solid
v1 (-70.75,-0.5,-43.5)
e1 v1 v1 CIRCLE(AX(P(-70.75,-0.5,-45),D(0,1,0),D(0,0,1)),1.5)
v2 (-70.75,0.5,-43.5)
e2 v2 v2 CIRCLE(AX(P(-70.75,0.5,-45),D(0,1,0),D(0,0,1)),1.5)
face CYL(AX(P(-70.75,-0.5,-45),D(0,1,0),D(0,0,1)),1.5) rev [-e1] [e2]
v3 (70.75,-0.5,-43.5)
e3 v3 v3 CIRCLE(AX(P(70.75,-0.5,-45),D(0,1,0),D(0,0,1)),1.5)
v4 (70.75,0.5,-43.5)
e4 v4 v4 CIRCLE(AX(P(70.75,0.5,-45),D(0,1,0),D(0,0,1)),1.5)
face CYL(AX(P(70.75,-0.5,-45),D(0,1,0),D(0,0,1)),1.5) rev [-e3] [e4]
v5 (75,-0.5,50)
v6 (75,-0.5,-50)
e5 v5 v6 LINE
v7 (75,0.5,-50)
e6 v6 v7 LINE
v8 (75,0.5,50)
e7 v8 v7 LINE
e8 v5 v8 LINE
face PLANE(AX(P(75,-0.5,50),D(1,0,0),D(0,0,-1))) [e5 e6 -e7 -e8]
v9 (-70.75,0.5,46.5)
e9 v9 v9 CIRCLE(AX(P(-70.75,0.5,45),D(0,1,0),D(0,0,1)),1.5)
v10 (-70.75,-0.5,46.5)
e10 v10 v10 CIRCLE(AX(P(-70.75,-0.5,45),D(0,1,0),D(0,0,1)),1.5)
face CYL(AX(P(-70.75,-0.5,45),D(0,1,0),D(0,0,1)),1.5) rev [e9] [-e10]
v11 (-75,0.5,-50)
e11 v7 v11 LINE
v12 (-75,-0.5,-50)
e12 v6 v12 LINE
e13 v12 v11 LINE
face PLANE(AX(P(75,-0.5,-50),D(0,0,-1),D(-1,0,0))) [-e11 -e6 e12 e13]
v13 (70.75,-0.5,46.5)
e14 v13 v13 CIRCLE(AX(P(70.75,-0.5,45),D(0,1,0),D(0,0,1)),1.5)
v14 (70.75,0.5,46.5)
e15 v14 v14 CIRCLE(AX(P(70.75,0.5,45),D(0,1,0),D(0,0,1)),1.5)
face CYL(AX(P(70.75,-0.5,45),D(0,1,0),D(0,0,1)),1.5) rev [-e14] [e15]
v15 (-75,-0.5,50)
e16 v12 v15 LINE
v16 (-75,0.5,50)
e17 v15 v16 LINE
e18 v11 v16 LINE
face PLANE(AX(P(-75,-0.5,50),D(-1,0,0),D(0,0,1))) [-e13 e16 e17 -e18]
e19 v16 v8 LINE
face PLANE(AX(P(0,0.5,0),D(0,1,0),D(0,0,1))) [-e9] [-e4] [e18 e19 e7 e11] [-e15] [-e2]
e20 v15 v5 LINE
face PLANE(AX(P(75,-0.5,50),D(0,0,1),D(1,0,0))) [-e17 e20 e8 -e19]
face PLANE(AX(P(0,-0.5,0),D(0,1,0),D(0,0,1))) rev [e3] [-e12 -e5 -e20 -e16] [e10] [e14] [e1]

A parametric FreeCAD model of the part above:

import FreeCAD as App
import Part
import Sketcher
from FreeCAD import Vector

doc = App.newDocument("Part")
body = doc.addObject("PartDesign::Body", "Body")

sketch1 = body.newObject("Sketcher::SketchObject", "Sketch")
sketch1.AttachmentSupport = (doc.getObject("XZ_Plane"), [""])
sketch1.MapMode = "FlatFace"
sketch1.addGeometry([
    Part.LineSegment(Vector(-75, -50, 0), Vector(-75, 50, 0)),
    Part.LineSegment(Vector(-75, 50, 0), Vector(75, 50, 0)),
    Part.LineSegment(Vector(75, 50, 0), Vector(75, -50, 0)),
    Part.LineSegment(Vector(75, -50, 0), Vector(-75, -50, 0)),
], False)
sketch1.addConstraint([
    Sketcher.Constraint("Coincident", 0, 2, 1, 1),
    Sketcher.Constraint("Coincident", 1, 2, 2, 1),
    Sketcher.Constraint("Coincident", 2, 2, 3, 1),
    Sketcher.Constraint("Coincident", 3, 2, 0, 1),
    Sketcher.Constraint("Vertical", 0),
    Sketcher.Constraint("Horizontal", 1),
    Sketcher.Constraint("Vertical", 2),
    Sketcher.Constraint("Horizontal", 3),
    Sketcher.Constraint("Symmetric", 0, 2, 2, 2, -1, 1),
    Sketcher.Constraint("DistanceX", 1, 1, 1, 2, 150.0),
    Sketcher.Constraint("DistanceY", 0, 1, 0, 2, 100.0),
])
pad1 = body.newObject("PartDesign::Pad", "Pad")
pad1.Profile = sketch1
pad1.Length = 1
pad1.Midplane = True

sketch2 = body.newObject("Sketcher::SketchObject", "Sketch001")
sketch2.AttachmentSupport = (doc.getObject("XZ_Plane"), [""])
sketch2.MapMode = "FlatFace"
sketch2.addGeometry([
    Part.Circle(Vector(-70.8, -45, 0), Vector(0, 0, 1), 1.5),
    Part.Circle(Vector(70.8, -45, 0), Vector(0, 0, 1), 1.5),
    Part.Circle(Vector(-70.8, 45, 0), Vector(0, 0, 1), 1.5),
    Part.Circle(Vector(70.8, 45, 0), Vector(0, 0, 1), 1.5),
], False)
sketch2.addConstraint([
    Sketcher.Constraint("Equal", 0, 1),
    Sketcher.Constraint("Equal", 1, 2),
    Sketcher.Constraint("Equal", 2, 3),
    Sketcher.Constraint("Symmetric", 1, 3, 2, 3, -1, 1),
    Sketcher.Constraint("Symmetric", 0, 3, 3, 3, -1, 1),
    Sketcher.Constraint("Symmetric", 0, 3, 1, 3, -2),
    Sketcher.Constraint("Diameter", 0, 3.0),
    Sketcher.Constraint("DistanceY", 0, 3, -1, 1, 45.0),
    Sketcher.Constraint("DistanceX", 0, 3, 1, 3, 141.5),
])
pocket1 = body.newObject("PartDesign::Pocket", "Pocket")
pocket1.Profile = sketch2
pocket1.Type = "ThroughAll"
pocket1.Midplane = True

doc.recompute()
